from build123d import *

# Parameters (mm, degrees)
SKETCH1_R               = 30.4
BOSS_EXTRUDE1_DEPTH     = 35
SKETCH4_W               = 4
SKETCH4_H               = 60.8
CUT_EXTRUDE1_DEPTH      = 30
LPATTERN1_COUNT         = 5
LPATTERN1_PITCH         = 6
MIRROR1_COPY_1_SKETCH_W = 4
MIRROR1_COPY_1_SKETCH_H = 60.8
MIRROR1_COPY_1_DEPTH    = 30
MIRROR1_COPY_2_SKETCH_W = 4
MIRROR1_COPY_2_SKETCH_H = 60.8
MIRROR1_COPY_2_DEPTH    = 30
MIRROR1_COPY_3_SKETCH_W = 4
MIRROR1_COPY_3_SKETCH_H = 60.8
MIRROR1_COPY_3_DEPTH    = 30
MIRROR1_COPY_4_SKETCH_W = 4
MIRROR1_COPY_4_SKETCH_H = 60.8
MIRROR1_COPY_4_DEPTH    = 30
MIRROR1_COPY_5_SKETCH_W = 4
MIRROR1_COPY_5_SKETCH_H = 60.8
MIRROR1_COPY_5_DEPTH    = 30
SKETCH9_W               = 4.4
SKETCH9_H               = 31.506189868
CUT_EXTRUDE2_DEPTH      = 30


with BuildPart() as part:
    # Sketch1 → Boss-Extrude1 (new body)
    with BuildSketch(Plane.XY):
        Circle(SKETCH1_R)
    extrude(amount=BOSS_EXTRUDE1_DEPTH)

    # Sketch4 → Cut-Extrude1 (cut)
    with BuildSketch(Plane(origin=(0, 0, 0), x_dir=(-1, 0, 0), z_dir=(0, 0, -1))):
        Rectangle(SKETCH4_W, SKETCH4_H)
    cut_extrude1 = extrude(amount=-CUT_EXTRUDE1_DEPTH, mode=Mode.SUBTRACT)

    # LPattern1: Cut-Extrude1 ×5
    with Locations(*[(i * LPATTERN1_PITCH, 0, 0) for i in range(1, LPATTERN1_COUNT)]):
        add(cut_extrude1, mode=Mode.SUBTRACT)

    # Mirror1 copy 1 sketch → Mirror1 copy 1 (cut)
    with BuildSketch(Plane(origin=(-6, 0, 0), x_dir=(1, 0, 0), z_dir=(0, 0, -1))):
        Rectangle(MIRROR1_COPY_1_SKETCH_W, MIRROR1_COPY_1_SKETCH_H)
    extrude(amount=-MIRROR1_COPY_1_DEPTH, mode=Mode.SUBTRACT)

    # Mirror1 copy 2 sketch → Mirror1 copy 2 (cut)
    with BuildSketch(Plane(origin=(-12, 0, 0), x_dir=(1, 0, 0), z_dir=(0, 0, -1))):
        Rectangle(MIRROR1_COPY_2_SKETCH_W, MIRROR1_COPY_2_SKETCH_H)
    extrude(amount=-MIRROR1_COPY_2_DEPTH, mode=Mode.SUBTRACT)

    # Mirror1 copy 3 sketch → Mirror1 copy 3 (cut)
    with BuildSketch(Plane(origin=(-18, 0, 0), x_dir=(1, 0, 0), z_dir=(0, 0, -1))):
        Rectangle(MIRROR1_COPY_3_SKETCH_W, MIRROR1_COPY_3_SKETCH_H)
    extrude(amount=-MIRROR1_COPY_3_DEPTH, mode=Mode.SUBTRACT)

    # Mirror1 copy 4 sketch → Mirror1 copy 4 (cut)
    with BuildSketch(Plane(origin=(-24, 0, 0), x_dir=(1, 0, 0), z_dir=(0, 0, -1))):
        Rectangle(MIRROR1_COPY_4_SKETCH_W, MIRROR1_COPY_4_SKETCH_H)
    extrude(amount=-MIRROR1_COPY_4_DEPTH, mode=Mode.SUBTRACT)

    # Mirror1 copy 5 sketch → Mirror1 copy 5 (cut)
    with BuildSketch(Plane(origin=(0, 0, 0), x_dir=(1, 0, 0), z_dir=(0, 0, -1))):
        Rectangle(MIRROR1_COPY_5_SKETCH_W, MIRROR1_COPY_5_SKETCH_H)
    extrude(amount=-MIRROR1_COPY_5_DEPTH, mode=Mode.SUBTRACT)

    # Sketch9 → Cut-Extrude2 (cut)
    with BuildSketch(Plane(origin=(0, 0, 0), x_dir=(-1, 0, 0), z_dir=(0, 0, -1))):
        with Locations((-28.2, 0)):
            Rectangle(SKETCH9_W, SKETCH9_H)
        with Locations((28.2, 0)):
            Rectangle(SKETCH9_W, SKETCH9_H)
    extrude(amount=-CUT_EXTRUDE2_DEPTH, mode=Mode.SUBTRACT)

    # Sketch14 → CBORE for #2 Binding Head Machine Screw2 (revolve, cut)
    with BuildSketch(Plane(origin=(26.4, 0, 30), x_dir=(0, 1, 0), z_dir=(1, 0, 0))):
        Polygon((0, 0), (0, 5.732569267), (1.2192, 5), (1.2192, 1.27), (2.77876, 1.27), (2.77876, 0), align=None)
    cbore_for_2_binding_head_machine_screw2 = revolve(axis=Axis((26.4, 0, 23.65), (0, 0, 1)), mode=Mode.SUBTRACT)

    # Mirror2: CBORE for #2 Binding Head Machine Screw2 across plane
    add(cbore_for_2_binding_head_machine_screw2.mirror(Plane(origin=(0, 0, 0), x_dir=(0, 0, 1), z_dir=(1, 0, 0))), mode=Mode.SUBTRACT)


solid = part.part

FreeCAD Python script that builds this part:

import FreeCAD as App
import Part
import Sketcher

V = App.Vector
Q = App.Units.Quantity

doc = App.newDocument("Part")
body = doc.addObject("PartDesign::Body", "Body")

# Sketch on XY plane
sketch1 = body.newObject("Sketcher::SketchObject", "Sketch")
sketch1.AttachmentSupport = (doc.getObject("XY_Plane"), [""])
sketch1.MapMode = "FlatFace"
sketch1.addGeometry(Part.Circle(V(0, 0, 0), V(0, 0, 1), 30), False)
sketch1.addConstraint(Sketcher.Constraint("Coincident", 0, 3, -1, 1))
sketch1.addConstraint(Sketcher.Constraint("Diameter", 0, Q("60.8 mm")))
pad1 = body.newObject("PartDesign::Pad", "Pad")
pad1.Profile = sketch1
pad1.Length = 35

# Sketch on XY plane
sketch2 = body.newObject("Sketcher::SketchObject", "Sketch001")
sketch2.AttachmentSupport = (doc.getObject("XY_Plane"), [""])
sketch2.MapMode = "FlatFace"
sketch2.addGeometry(Part.LineSegment(V(2, 30.4, 0), V(2, -30.4, 0)), False)
sketch2.addGeometry(Part.LineSegment(V(2, -30.4, 0), V(-2, -30.4, 0)), False)
sketch2.addGeometry(Part.LineSegment(V(-2, -30.4, 0), V(-2, 30.4, 0)), False)
sketch2.addGeometry(Part.LineSegment(V(-2, 30.4, 0), V(2, 30.4, 0)), False)
sketch2.addConstraint(Sketcher.Constraint("Coincident", 0, 2, 1, 1))
sketch2.addConstraint(Sketcher.Constraint("Coincident", 1, 2, 2, 1))
sketch2.addConstraint(Sketcher.Constraint("Coincident", 2, 2, 3, 1))
sketch2.addConstraint(Sketcher.Constraint("Coincident", 3, 2, 0, 1))
sketch2.addConstraint(Sketcher.Constraint("Vertical", 0))
sketch2.addConstraint(Sketcher.Constraint("Horizontal", 1))
sketch2.addConstraint(Sketcher.Constraint("Vertical", 2))
sketch2.addConstraint(Sketcher.Constraint("Horizontal", 3))
sketch2.addConstraint(Sketcher.Constraint("Symmetric", 0, 2, 2, 2, -1, 1))
sketch2.addConstraint(Sketcher.Constraint("DistanceX", 1, 2, 1, 1, Q("4 mm")))
sketch2.addConstraint(Sketcher.Constraint("DistanceY", 0, 2, 0, 1, Q("60.8 mm")))
pocket1 = body.newObject("PartDesign::Pocket", "Pocket")
pocket1.Profile = sketch2
pocket1.Length = 30
pocket1.Reversed = True
doc.recompute()

linearpattern = body.newObject("PartDesign::LinearPattern", "LinearPattern")
linearpattern.Originals = [pocket1]
linearpattern.Direction = (doc.getObject("X_Axis"), [""])
linearpattern.Mode = "offset"
linearpattern.Offset = 6
linearpattern.Occurrences = 5
body.Tip = linearpattern

# Sketch on XY plane
sketch3 = body.newObject("Sketcher::SketchObject", "Sketch002")
sketch3.AttachmentSupport = (doc.getObject("XY_Plane"), [""])
sketch3.MapMode = "FlatFace"
sketch3.addGeometry(Part.LineSegment(V(-8, -30.4, 0), V(-8, 30.4, 0)), False)
sketch3.addGeometry(Part.LineSegment(V(-8, 30.4, 0), V(-4, 30.4, 0)), False)
sketch3.addGeometry(Part.LineSegment(V(-4, 30.4, 0), V(-4, -30.4, 0)), False)
sketch3.addGeometry(Part.LineSegment(V(-4, -30.4, 0), V(-8, -30.4, 0)), False)
sketch3.addConstraint(Sketcher.Constraint("Coincident", 0, 2, 1, 1))
sketch3.addConstraint(Sketcher.Constraint("Coincident", 1, 2, 2, 1))
sketch3.addConstraint(Sketcher.Constraint("Coincident", 2, 2, 3, 1))
sketch3.addConstraint(Sketcher.Constraint("Coincident", 3, 2, 0, 1))
sketch3.addConstraint(Sketcher.Constraint("Vertical", 0))
sketch3.addConstraint(Sketcher.Constraint("Horizontal", 1))
sketch3.addConstraint(Sketcher.Constraint("Vertical", 2))
sketch3.addConstraint(Sketcher.Constraint("Horizontal", 3))
sketch3.addConstraint(Sketcher.Constraint("DistanceX", 1, 1, 1, 2, Q("4 mm")))
sketch3.addConstraint(Sketcher.Constraint("DistanceY", 0, 1, 0, 2, Q("60.8 mm")))
sketch3.addConstraint(Sketcher.Constraint("DistanceX", 0, 2, -1, 1, Q("8 mm")))
sketch3.addConstraint(Sketcher.Constraint("DistanceY", -1, 1, 0, 2, Q("30.4 mm")))
pocket2 = body.newObject("PartDesign::Pocket", "Pocket001")
pocket2.Profile = sketch3
pocket2.Length = 30
pocket2.Reversed = True

# Sketch on XY plane
sketch4 = body.newObject("Sketcher::SketchObject", "Sketch003")
sketch4.AttachmentSupport = (doc.getObject("XY_Plane"), [""])
sketch4.MapMode = "FlatFace"
sketch4.addGeometry(Part.LineSegment(V(-14, -30.4, 0), V(-14, 30.4, 0)), False)
sketch4.addGeometry(Part.LineSegment(V(-14, 30.4, 0), V(-10, 30.4, 0)), False)
sketch4.addGeometry(Part.LineSegment(V(-10, 30.4, 0), V(-10, -30.4, 0)), False)
sketch4.addGeometry(Part.LineSegment(V(-10, -30.4, 0), V(-14, -30.4, 0)), False)
sketch4.addConstraint(Sketcher.Constraint("Coincident", 0, 2, 1, 1))
sketch4.addConstraint(Sketcher.Constraint("Coincident", 1, 2, 2, 1))
sketch4.addConstraint(Sketcher.Constraint("Coincident", 2, 2, 3, 1))
sketch4.addConstraint(Sketcher.Constraint("Coincident", 3, 2, 0, 1))
sketch4.addConstraint(Sketcher.Constraint("Vertical", 0))
sketch4.addConstraint(Sketcher.Constraint("Horizontal", 1))
sketch4.addConstraint(Sketcher.Constraint("Vertical", 2))
sketch4.addConstraint(Sketcher.Constraint("Horizontal", 3))
sketch4.addConstraint(Sketcher.Constraint("DistanceX", 1, 1, 1, 2, Q("4 mm")))
sketch4.addConstraint(Sketcher.Constraint("DistanceY", 0, 1, 0, 2, Q("60.8 mm")))
sketch4.addConstraint(Sketcher.Constraint("DistanceX", 0, 2, -1, 1, Q("14 mm")))
sketch4.addConstraint(Sketcher.Constraint("DistanceY", -1, 1, 0, 2, Q("30.4 mm")))
pocket3 = body.newObject("PartDesign::Pocket", "Pocket002")
pocket3.Profile = sketch4
pocket3.Length = 30
pocket3.Reversed = True

# Sketch on XY plane
sketch5 = body.newObject("Sketcher::SketchObject", "Sketch004")
sketch5.AttachmentSupport = (doc.getObject("XY_Plane"), [""])
sketch5.MapMode = "FlatFace"
sketch5.addGeometry(Part.LineSegment(V(-20, -30.4, 0), V(-20, 30.4, 0)), False)
sketch5.addGeometry(Part.LineSegment(V(-20, 30.4, 0), V(-16, 30.4, 0)), False)
sketch5.addGeometry(Part.LineSegment(V(-16, 30.4, 0), V(-16, -30.4, 0)), False)
sketch5.addGeometry(Part.LineSegment(V(-16, -30.4, 0), V(-20, -30.4, 0)), False)
sketch5.addConstraint(Sketcher.Constraint("Coincident", 0, 2, 1, 1))
sketch5.addConstraint(Sketcher.Constraint("Coincident", 1, 2, 2, 1))
sketch5.addConstraint(Sketcher.Constraint("Coincident", 2, 2, 3, 1))
sketch5.addConstraint(Sketcher.Constraint("Coincident", 3, 2, 0, 1))
sketch5.addConstraint(Sketcher.Constraint("Vertical", 0))
sketch5.addConstraint(Sketcher.Constraint("Horizontal", 1))
sketch5.addConstraint(Sketcher.Constraint("Vertical", 2))
sketch5.addConstraint(Sketcher.Constraint("Horizontal", 3))
sketch5.addConstraint(Sketcher.Constraint("DistanceX", 1, 1, 1, 2, Q("4 mm")))
sketch5.addConstraint(Sketcher.Constraint("DistanceY", 0, 1, 0, 2, Q("60.8 mm")))
sketch5.addConstraint(Sketcher.Constraint("DistanceX", 0, 2, -1, 1, Q("20 mm")))
sketch5.addConstraint(Sketcher.Constraint("DistanceY", -1, 1, 0, 2, Q("30.4 mm")))
pocket4 = body.newObject("PartDesign::Pocket", "Pocket003")
pocket4.Profile = sketch5
pocket4.Length = 30
pocket4.Reversed = True

# Sketch on XY plane
sketch6 = body.newObject("Sketcher::SketchObject", "Sketch005")
sketch6.AttachmentSupport = (doc.getObject("XY_Plane"), [""])
sketch6.MapMode = "FlatFace"
sketch6.addGeometry(Part.LineSegment(V(-26, -30.4, 0), V(-26, 30.4, 0)), False)
sketch6.addGeometry(Part.LineSegment(V(-26, 30.4, 0), V(-22, 30.4, 0)), False)
sketch6.addGeometry(Part.LineSegment(V(-22, 30.4, 0), V(-22, -30.4, 0)), False)
sketch6.addGeometry(Part.LineSegment(V(-22, -30.4, 0), V(-26, -30.4, 0)), False)
sketch6.addConstraint(Sketcher.Constraint("Coincident", 0, 2, 1, 1))
sketch6.addConstraint(Sketcher.Constraint("Coincident", 1, 2, 2, 1))
sketch6.addConstraint(Sketcher.Constraint("Coincident", 2, 2, 3, 1))
sketch6.addConstraint(Sketcher.Constraint("Coincident", 3, 2, 0, 1))
sketch6.addConstraint(Sketcher.Constraint("Vertical", 0))
sketch6.addConstraint(Sketcher.Constraint("Horizontal", 1))
sketch6.addConstraint(Sketcher.Constraint("Vertical", 2))
sketch6.addConstraint(Sketcher.Constraint("Horizontal", 3))
sketch6.addConstraint(Sketcher.Constraint("DistanceX", 1, 1, 1, 2, Q("4 mm")))
sketch6.addConstraint(Sketcher.Constraint("DistanceY", 0, 1, 0, 2, Q("60.8 mm")))
sketch6.addConstraint(Sketcher.Constraint("DistanceX", 0, 2, -1, 1, Q("26 mm")))
sketch6.addConstraint(Sketcher.Constraint("DistanceY", -1, 1, 0, 2, Q("30.4 mm")))
pocket5 = body.newObject("PartDesign::Pocket", "Pocket004")
pocket5.Profile = sketch6
pocket5.Length = 30
pocket5.Reversed = True

# Sketch on XY plane
sketch7 = body.newObject("Sketcher::SketchObject", "Sketch006")
sketch7.AttachmentSupport = (doc.getObject("XY_Plane"), [""])
sketch7.MapMode = "FlatFace"
sketch7.addGeometry(Part.LineSegment(V(-2, -30.4, 0), V(-2, 30.4, 0)), False)
sketch7.addGeometry(Part.LineSegment(V(-2, 30.4, 0), V(2, 30.4, 0)), False)
sketch7.addGeometry(Part.LineSegment(V(2, 30.4, 0), V(2, -30.4, 0)), False)
sketch7.addGeometry(Part.LineSegment(V(2, -30.4, 0), V(-2, -30.4, 0)), False)
sketch7.addConstraint(Sketcher.Constraint("Coincident", 0, 2, 1, 1))
sketch7.addConstraint(Sketcher.Constraint("Coincident", 1, 2, 2, 1))
sketch7.addConstraint(Sketcher.Constraint("Coincident", 2, 2, 3, 1))
sketch7.addConstraint(Sketcher.Constraint("Coincident", 3, 2, 0, 1))
sketch7.addConstraint(Sketcher.Constraint("Vertical", 0))
sketch7.addConstraint(Sketcher.Constraint("Horizontal", 1))
sketch7.addConstraint(Sketcher.Constraint("Vertical", 2))
sketch7.addConstraint(Sketcher.Constraint("Horizontal", 3))
sketch7.addConstraint(Sketcher.Constraint("Symmetric", 0, 2, 2, 2, -1, 1))
sketch7.addConstraint(Sketcher.Constraint("DistanceX", 1, 1, 1, 2, Q("4 mm")))
sketch7.addConstraint(Sketcher.Constraint("DistanceY", 0, 1, 0, 2, Q("60.8 mm")))
pocket6 = body.newObject("PartDesign::Pocket", "Pocket005")
pocket6.Profile = sketch7
pocket6.Length = 30
pocket6.Reversed = True

# Sketch on XY plane
sketch8 = body.newObject("Sketcher::SketchObject", "Sketch007")
sketch8.AttachmentSupport = (doc.getObject("XY_Plane"), [""])
sketch8.MapMode = "FlatFace"
sketch8.addGeometry(Part.LineSegment(V(30.4, 15.8, 0), V(30.4, -15.8, 0)), False)
sketch8.addGeometry(Part.LineSegment(V(30.4, -15.8, 0), V(26, -15.8, 0)), False)
sketch8.addGeometry(Part.LineSegment(V(26, -15.8, 0), V(26, 15.8, 0)), False)
sketch8.addGeometry(Part.LineSegment(V(26, 15.8, 0), V(30.4, 15.8, 0)), False)
sketch8.addGeometry(Part.LineSegment(V(-26, 15.8, 0), V(-26, -15.8, 0)), False)
sketch8.addGeometry(Part.LineSegment(V(-26, -15.8, 0), V(-30.4, -15.8, 0)), False)
sketch8.addGeometry(Part.LineSegment(V(-30.4, -15.8, 0), V(-30.4, 15.8, 0)), False)
sketch8.addGeometry(Part.LineSegment(V(-30.4, 15.8, 0), V(-26, 15.8, 0)), False)
sketch8.addConstraint(Sketcher.Constraint("Coincident", 0, 2, 1, 1))
sketch8.addConstraint(Sketcher.Constraint("Coincident", 1, 2, 2, 1))
sketch8.addConstraint(Sketcher.Constraint("Coincident", 2, 2, 3, 1))
sketch8.addConstraint(Sketcher.Constraint("Coincident", 3, 2, 0, 1))
sketch8.addConstraint(Sketcher.Constraint("Coincident", 4, 2, 5, 1))
sketch8.addConstraint(Sketcher.Constraint("Coincident", 5, 2, 6, 1))
sketch8.addConstraint(Sketcher.Constraint("Coincident", 6, 2, 7, 1))
sketch8.addConstraint(Sketcher.Constraint("Coincident", 7, 2, 4, 1))
sketch8.addConstraint(Sketcher.Constraint("Vertical", 0))
sketch8.addConstraint(Sketcher.Constraint("Horizontal", 1))
sketch8.addConstraint(Sketcher.Constraint("Vertical", 2))
sketch8.addConstraint(Sketcher.Constraint("Horizontal", 3))
sketch8.addConstraint(Sketcher.Constraint("Vertical", 4))
sketch8.addConstraint(Sketcher.Constraint("Horizontal", 5))
sketch8.addConstraint(Sketcher.Constraint("Vertical", 6))
sketch8.addConstraint(Sketcher.Constraint("Horizontal", 7))
sketch8.addConstraint(Sketcher.Constraint("Symmetric", 2, 2, 4, 2, -1, 1))
sketch8.addConstraint(Sketcher.Constraint("Symmetric", 0, 2, 6, 2, -1, 1))
sketch8.addConstraint(Sketcher.Constraint("Horizontal", 1, 2, 4, 2))
sketch8.addConstraint(Sketcher.Constraint("DistanceX", 1, 2, 1, 1, Q("4.4 mm")))
sketch8.addConstraint(Sketcher.Constraint("DistanceX", -1, 1, 1, 2, Q("26 mm")))
sketch8.addConstraint(Sketcher.Constraint("DistanceY", 0, 2, 0, 1, Q("31.50619 mm")))
pocket7 = body.newObject("PartDesign::Pocket", "Pocket006")
pocket7.Profile = sketch8
pocket7.Length = 30
pocket7.Reversed = True

# Sketch on YZ plane
sketch9 = body.newObject("Sketcher::SketchObject", "Sketch008")
sketch9.AttachmentSupport = (doc.getObject("YZ_Plane"), [""])
sketch9.MapMode = "FlatFace"
sketch9.AttachmentOffset = App.Placement(V(0, 0, 26.4), App.Rotation())
sketch9.addGeometry(Part.LineSegment(V(0, 35.7, 0), V(0, 30, 0)), False)
sketch9.addGeometry(Part.LineSegment(V(0, 30, 0), V(2.8, 30, 0)), False)
sketch9.addGeometry(Part.LineSegment(V(2.8, 30, 0), V(2.8, 31.3, 0)), False)
sketch9.addGeometry(Part.LineSegment(V(2.8, 31.3, 0), V(1.2, 31.3, 0)), False)
sketch9.addGeometry(Part.LineSegment(V(1.2, 31.3, 0), V(1.2, 35, 0)), False)
sketch9.addGeometry(Part.LineSegment(V(1.2, 35, 0), V(0, 35.7, 0)), False)
sketch9.addConstraint(Sketcher.Constraint("Coincident", 0, 2, 1, 1))
sketch9.addConstraint(Sketcher.Constraint("Coincident", 1, 2, 2, 1))
sketch9.addConstraint(Sketcher.Constraint("Coincident", 2, 2, 3, 1))
sketch9.addConstraint(Sketcher.Constraint("Coincident", 3, 2, 4, 1))
sketch9.addConstraint(Sketcher.Constraint("Coincident", 4, 2, 5, 1))
sketch9.addConstraint(Sketcher.Constraint("Coincident", 5, 2, 0, 1))
sketch9.addConstraint(Sketcher.Constraint("Vertical", 0))
sketch9.addConstraint(Sketcher.Constraint("Horizontal", 1))
sketch9.addConstraint(Sketcher.Constraint("Vertical", 2))
sketch9.addConstraint(Sketcher.Constraint("Horizontal", 3))
sketch9.addConstraint(Sketcher.Constraint("Vertical", 4))
sketch9.addConstraint(Sketcher.Constraint("PointOnObject", 0, 2, -2))
sketch9.addConstraint(Sketcher.Constraint("Angle", 5, Q("149 deg")))
sketch9.addConstraint(Sketcher.Constraint("DistanceY", -1, 1, 0, 2, Q("30 mm")))
sketch9.addConstraint(Sketcher.Constraint("DistanceY", -1, 1, 4, 2, Q("35 mm")))
sketch9.addConstraint(Sketcher.Constraint("DistanceY", 2, 1, 2, 2, Q("1.27 mm")))
sketch9.addConstraint(Sketcher.Constraint("DistanceX", 1, 1, 1, 2, Q("2.77876 mm")))
sketch9.addConstraint(Sketcher.Constraint("DistanceX", 3, 2, 3, 1, Q("1.55956 mm")))
groove = body.newObject("PartDesign::Groove", "Groove")
groove.Profile = sketch9
groove.ReferenceAxis = (sketch9, ["V_Axis"])
groove.Angle = 360
doc.recompute()

mirrored = body.newObject("PartDesign::Mirrored", "Mirrored")
mirrored.Originals = [groove]
mirrored.MirrorPlane = (doc.getObject("YZ_Plane"), [""])
body.Tip = mirrored

doc.recompute()
